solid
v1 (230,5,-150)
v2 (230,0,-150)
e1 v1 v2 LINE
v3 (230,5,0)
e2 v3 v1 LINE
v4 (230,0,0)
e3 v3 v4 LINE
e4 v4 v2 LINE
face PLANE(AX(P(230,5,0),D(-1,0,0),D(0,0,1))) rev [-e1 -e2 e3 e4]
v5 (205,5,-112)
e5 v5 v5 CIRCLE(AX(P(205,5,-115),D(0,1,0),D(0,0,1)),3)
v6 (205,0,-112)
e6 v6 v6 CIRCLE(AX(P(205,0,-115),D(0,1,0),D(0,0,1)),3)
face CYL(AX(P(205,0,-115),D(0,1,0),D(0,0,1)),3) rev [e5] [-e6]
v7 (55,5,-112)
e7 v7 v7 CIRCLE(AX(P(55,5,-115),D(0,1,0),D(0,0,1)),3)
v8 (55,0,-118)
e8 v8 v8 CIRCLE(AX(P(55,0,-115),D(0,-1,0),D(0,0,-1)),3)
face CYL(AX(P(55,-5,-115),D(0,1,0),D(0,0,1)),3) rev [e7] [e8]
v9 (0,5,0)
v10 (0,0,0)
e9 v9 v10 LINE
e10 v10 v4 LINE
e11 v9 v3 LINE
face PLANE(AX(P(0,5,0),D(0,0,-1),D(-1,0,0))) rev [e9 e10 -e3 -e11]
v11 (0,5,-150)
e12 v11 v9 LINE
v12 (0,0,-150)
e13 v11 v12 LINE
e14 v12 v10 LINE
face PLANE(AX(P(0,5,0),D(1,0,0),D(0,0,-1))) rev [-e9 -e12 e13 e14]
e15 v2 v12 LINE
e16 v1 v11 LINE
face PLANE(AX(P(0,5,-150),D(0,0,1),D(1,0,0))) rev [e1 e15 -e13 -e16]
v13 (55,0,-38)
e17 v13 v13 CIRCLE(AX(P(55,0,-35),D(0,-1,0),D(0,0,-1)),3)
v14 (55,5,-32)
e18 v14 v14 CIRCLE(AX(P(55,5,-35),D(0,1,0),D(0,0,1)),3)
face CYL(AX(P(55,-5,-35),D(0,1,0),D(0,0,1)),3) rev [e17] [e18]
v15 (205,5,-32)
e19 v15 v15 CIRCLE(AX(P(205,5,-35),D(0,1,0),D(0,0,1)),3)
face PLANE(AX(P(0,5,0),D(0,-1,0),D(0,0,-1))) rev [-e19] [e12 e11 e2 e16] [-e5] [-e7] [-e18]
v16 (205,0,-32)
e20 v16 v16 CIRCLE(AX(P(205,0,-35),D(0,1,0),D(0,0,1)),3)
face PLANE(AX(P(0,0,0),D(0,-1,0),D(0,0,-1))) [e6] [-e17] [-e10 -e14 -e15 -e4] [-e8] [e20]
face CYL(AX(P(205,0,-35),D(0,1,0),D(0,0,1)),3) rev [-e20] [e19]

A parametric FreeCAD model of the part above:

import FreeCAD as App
import Part
import Sketcher
Q = App.Units.Quantity


def add_polygon(sketch, points):
    """Adds a closed chain of lines whose ends are joined by coincident constraints."""
    first, n = sketch.GeometryCount, len(points)
    for a, b in zip(points, points[1:] + points[:1]):
        sketch.addGeometry(Part.LineSegment(App.Vector(*a, 0), App.Vector(*b, 0)), False)
    for i in range(n):
        sketch.addConstraint(Sketcher.Constraint("Coincident", first + i, 2, first + (i + 1) % n, 1))

doc = App.newDocument("Part")
body = doc.addObject("PartDesign::Body", "Body")

# Sketch on XZ plane
sketch1 = body.newObject("Sketcher::SketchObject", "Sketch")
sketch1.AttachmentSupport = (doc.getObject("XZ_Plane"), [""])
sketch1.MapMode = "FlatFace"
add_polygon(sketch1, [(0, -150), (0, 0), (230, 0), (230, -150)])  # lines 0-3
sketch1.addConstraint([
    Sketcher.Constraint("Vertical", 0),
    Sketcher.Constraint("Horizontal", 1),
    Sketcher.Constraint("Vertical", 2),
    Sketcher.Constraint("Horizontal", 3),
    Sketcher.Constraint("Coincident", 0, 2, -1, 1),
    Sketcher.Constraint("DistanceX", 1, 1, 1, 2, Q("230 mm")),
    Sketcher.Constraint("DistanceY", 0, 1, 0, 2, Q("150 mm")),
])
pad1 = body.newObject("PartDesign::Pad", "Pad")
pad1.Profile = sketch1
pad1.Length = 5
pad1.Reversed = True

# Sketch on XZ plane
sketch2 = body.newObject("Sketcher::SketchObject", "Sketch001")
sketch2.AttachmentSupport = (doc.getObject("XZ_Plane"), [""])
sketch2.MapMode = "FlatFace"
sketch2.AttachmentOffset = App.Placement(App.Vector(0, 0, -5), App.Rotation())
sketch2.addGeometry([
    Part.Circle(App.Vector(205, -35, 0), App.Vector(0, 0, 1), 3),
    Part.Circle(App.Vector(205, -115, 0), App.Vector(0, 0, 1), 3),
], False)
sketch2.addConstraint([
    Sketcher.Constraint("Equal", 0, 1),
    Sketcher.Constraint("Vertical", 0, 3, 1, 3),
    Sketcher.Constraint("Diameter", 0, Q("6 mm")),
    Sketcher.Constraint("DistanceX", -1, 1, 0, 3, Q("205 mm")),
    Sketcher.Constraint("DistanceY", 0, 3, -1, 1, Q("35 mm")),
    Sketcher.Constraint("DistanceY", 1, 3, -1, 1, Q("115 mm")),
])
pocket1 = body.newObject("PartDesign::Pocket", "Pocket")
pocket1.Profile = sketch2
pocket1.Type = "ThroughAll"
pocket1.Reversed = True

# Sketch on XZ plane
sketch3 = body.newObject("Sketcher::SketchObject", "Sketch002")
sketch3.AttachmentSupport = (doc.getObject("XZ_Plane"), [""])
sketch3.MapMode = "FlatFace"
sketch3.AttachmentOffset = App.Placement(App.Vector(0, 0, -5), App.Rotation())
sketch3.addGeometry([
    Part.Circle(App.Vector(55, -115, 0), App.Vector(0, 0, 1), 3),
    Part.Circle(App.Vector(55, -35, 0), App.Vector(0, 0, 1), 3),
], False)
sketch3.addConstraint([
    Sketcher.Constraint("Equal", 0, 1),
    Sketcher.Constraint("Vertical", 0, 3, 1, 3),
    Sketcher.Constraint("Diameter", 0, Q("6 mm")),
    Sketcher.Constraint("DistanceX", -1, 1, 0, 3, Q("55 mm")),
    Sketcher.Constraint("DistanceY", 0, 3, -1, 1, Q("115 mm")),
    Sketcher.Constraint("DistanceY", 1, 3, -1, 1, Q("35 mm")),
])
pocket2 = body.newObject("PartDesign::Pocket", "Pocket001")
pocket2.Profile = sketch3
pocket2.Length = 10
pocket2.Reversed = True

doc.recompute()
